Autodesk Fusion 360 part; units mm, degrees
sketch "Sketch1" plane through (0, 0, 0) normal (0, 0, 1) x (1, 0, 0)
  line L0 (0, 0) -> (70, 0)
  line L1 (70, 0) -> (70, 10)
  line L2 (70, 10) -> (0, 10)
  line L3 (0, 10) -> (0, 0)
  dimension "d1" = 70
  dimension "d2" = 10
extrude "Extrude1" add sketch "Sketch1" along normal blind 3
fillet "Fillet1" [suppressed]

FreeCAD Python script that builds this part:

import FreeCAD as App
import Part
import Sketcher

doc = App.newDocument("Part")
body = doc.addObject("PartDesign::Body", "Body")

sketch1 = body.newObject("Sketcher::SketchObject", "Sketch")
sketch1.AttachmentSupport = (doc.getObject("XY_Plane"), [""])
sketch1.MapMode = "FlatFace"
sketch1.addGeometry([
    Part.LineSegment(App.Vector(0, 10, 0), App.Vector(0, 0, 0)),
    Part.LineSegment(App.Vector(0, 0, 0), App.Vector(70, 0, 0)),
    Part.LineSegment(App.Vector(70, 0, 0), App.Vector(70, 10, 0)),
    Part.LineSegment(App.Vector(70, 10, 0), App.Vector(0, 10, 0)),
], False)
sketch1.addConstraint([
    Sketcher.Constraint("Coincident", 0, 2, 1, 1),
    Sketcher.Constraint("Coincident", 1, 2, 2, 1),
    Sketcher.Constraint("Coincident", 2, 2, 3, 1),
    Sketcher.Constraint("Coincident", 3, 2, 0, 1),
    Sketcher.Constraint("Vertical", 0),
    Sketcher.Constraint("Horizontal", 1),
    Sketcher.Constraint("Vertical", 2),
    Sketcher.Constraint("Horizontal", 3),
    Sketcher.Constraint("Coincident", 0, 2, -1, 1),
    Sketcher.Constraint("DistanceX", 1, 1, 1, 2, 70.0),
    Sketcher.Constraint("DistanceY", 0, 2, 0, 1, 10.0),
])
pad1 = body.newObject("PartDesign::Pad", "Pad")
pad1.Profile = sketch1
pad1.Length = 3

doc.recompute()
